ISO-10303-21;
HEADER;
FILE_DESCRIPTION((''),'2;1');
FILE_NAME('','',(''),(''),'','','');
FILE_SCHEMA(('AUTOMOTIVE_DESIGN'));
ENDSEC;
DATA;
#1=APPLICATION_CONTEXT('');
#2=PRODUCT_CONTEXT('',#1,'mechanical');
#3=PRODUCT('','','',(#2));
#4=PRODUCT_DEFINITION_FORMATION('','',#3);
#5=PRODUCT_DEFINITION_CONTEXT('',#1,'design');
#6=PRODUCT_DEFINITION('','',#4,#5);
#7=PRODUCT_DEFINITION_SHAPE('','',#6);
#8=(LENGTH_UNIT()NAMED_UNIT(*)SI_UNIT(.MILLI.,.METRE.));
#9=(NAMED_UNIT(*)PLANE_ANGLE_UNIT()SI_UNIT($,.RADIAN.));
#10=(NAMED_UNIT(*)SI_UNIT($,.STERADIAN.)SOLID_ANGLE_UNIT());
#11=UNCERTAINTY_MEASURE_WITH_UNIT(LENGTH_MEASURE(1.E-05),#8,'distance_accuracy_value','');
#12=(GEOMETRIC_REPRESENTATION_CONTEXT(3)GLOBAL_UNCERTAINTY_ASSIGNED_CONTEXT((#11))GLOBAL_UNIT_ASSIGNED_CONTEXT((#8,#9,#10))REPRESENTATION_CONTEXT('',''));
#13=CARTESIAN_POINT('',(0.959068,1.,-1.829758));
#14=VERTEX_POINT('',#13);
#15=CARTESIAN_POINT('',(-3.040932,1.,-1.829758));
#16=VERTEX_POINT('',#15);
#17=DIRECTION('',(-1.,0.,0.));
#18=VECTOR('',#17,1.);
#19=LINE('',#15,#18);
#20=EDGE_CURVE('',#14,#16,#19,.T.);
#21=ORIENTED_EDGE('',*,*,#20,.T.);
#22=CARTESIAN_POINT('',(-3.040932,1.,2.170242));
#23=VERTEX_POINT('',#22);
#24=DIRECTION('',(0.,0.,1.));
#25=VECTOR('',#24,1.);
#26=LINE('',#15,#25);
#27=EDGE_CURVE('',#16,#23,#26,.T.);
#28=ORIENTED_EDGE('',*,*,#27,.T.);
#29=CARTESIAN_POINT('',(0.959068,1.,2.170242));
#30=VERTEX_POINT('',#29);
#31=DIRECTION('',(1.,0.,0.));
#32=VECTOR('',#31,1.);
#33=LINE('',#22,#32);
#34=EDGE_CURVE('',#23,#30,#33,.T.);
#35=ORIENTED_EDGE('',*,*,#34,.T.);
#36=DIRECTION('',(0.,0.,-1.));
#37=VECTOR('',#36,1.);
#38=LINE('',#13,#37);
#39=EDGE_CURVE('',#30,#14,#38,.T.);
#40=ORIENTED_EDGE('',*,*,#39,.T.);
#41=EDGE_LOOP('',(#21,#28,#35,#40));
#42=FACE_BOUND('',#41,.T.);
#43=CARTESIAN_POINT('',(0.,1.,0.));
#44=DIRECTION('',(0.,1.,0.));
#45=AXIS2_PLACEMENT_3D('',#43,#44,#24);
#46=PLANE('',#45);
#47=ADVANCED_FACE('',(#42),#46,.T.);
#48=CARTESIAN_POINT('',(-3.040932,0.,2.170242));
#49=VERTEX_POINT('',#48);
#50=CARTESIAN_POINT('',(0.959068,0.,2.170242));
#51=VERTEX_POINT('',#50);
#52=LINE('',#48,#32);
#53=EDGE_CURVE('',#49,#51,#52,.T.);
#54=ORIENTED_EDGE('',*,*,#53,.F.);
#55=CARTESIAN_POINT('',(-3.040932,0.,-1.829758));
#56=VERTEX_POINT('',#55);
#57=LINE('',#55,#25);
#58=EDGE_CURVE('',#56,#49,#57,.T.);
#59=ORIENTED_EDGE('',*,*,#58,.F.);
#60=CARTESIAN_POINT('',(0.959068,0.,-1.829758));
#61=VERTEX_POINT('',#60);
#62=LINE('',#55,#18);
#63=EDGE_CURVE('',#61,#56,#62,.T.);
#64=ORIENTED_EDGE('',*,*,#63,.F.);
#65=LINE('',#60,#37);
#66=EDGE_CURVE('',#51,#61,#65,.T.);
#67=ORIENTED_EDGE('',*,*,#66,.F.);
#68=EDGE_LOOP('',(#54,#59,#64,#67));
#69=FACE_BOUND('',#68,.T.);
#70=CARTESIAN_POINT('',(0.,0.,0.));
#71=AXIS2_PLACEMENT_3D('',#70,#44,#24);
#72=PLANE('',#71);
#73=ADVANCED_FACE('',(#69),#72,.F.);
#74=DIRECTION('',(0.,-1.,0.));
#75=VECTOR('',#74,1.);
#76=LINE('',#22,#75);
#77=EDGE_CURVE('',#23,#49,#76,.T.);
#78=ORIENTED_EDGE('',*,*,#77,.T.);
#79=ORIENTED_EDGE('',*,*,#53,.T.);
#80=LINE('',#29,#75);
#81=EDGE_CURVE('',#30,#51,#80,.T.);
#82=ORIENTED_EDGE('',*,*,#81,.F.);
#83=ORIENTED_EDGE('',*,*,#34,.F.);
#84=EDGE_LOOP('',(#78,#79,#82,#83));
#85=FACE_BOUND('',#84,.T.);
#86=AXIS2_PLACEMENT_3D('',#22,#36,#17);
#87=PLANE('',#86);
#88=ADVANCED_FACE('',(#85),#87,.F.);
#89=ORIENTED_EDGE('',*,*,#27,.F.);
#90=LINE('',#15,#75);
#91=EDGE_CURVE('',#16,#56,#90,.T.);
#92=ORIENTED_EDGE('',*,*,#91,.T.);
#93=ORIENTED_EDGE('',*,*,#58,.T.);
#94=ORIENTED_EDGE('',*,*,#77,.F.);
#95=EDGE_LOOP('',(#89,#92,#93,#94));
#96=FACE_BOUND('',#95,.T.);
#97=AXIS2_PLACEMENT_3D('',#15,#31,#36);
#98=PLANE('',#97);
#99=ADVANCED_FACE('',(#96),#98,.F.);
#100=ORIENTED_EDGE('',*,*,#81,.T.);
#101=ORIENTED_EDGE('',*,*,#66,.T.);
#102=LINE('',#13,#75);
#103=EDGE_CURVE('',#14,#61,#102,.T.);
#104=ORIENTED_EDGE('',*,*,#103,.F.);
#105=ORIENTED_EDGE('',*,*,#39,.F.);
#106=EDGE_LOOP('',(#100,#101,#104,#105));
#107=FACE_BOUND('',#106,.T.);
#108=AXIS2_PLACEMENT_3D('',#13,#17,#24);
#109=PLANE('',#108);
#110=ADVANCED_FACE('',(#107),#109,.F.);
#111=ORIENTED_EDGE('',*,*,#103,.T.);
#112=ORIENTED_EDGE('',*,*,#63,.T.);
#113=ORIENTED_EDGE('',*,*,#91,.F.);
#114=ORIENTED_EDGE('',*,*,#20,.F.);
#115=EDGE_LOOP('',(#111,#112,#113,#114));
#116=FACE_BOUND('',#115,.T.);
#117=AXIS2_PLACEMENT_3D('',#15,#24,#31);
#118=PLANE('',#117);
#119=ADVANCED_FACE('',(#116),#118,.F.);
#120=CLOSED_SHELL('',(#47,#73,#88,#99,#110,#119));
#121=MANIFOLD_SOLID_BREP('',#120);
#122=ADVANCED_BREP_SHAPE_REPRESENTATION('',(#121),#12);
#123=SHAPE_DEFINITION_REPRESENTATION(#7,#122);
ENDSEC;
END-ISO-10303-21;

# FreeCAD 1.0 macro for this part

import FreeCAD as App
import Part
import Sketcher
Q = App.Units.Quantity


def add_polygon(sketch, points):
    """Adds a closed chain of lines whose ends are joined by coincident constraints."""
    first, n = sketch.GeometryCount, len(points)
    for a, b in zip(points, points[1:] + points[:1]):
        sketch.addGeometry(Part.LineSegment(App.Vector(*a, 0), App.Vector(*b, 0)), False)
    for i in range(n):
        sketch.addConstraint(Sketcher.Constraint("Coincident", first + i, 2, first + (i + 1) % n, 1))

doc = App.newDocument("Part")
params = doc.addObject("Spreadsheet::Sheet", "Params")
for row, (alias, value) in enumerate([
    ("sketch1_width", "4 mm"),
    ("pad1_length", "1 mm"),
], start=1):
    params.set(f"A{row}", alias)
    params.set(f"B{row}", "=" + value)
    params.setAlias(f"B{row}", alias)

body = doc.addObject("PartDesign::Body", "Body")

# Sketch on XZ plane
sketch1 = body.newObject("Sketcher::SketchObject", "Sketch")
sketch1.AttachmentSupport = (doc.getObject("XZ_Plane"), [""])
sketch1.MapMode = "FlatFace"
add_polygon(sketch1, [(-3.040932, -1.829758), (-3.040932, 2.170242), (0.959068, 2.170242), (0.959068, -1.829758)])  # lines 0-3
sketch1.addConstraint(Sketcher.Constraint("Vertical", 0))
sketch1.addConstraint(Sketcher.Constraint("Horizontal", 1))
sketch1.addConstraint(Sketcher.Constraint("Vertical", 2))
sketch1.addConstraint(Sketcher.Constraint("Horizontal", 3))
sketch1.addConstraint(Sketcher.Constraint("Equal", 3, 0))
sketch1.addConstraint(Sketcher.Constraint("DistanceX", 1, 1, 1, 2, Q("4 mm")))
sketch1.addConstraint(Sketcher.Constraint("DistanceY", -1, 1, 0, 2, Q("2.170242 mm")))
sketch1.addConstraint(Sketcher.Constraint("DistanceX", 0, 2, -1, 1, Q("3.040932 mm")))
sketch1.setExpression("Constraints[9]", "Params.sketch1_width")
pad1 = body.newObject("PartDesign::Pad", "Pad")
pad1.Profile = sketch1
pad1.setExpression("Length", "Params.pad1_length")
pad1.Reversed = True

doc.recompute()
